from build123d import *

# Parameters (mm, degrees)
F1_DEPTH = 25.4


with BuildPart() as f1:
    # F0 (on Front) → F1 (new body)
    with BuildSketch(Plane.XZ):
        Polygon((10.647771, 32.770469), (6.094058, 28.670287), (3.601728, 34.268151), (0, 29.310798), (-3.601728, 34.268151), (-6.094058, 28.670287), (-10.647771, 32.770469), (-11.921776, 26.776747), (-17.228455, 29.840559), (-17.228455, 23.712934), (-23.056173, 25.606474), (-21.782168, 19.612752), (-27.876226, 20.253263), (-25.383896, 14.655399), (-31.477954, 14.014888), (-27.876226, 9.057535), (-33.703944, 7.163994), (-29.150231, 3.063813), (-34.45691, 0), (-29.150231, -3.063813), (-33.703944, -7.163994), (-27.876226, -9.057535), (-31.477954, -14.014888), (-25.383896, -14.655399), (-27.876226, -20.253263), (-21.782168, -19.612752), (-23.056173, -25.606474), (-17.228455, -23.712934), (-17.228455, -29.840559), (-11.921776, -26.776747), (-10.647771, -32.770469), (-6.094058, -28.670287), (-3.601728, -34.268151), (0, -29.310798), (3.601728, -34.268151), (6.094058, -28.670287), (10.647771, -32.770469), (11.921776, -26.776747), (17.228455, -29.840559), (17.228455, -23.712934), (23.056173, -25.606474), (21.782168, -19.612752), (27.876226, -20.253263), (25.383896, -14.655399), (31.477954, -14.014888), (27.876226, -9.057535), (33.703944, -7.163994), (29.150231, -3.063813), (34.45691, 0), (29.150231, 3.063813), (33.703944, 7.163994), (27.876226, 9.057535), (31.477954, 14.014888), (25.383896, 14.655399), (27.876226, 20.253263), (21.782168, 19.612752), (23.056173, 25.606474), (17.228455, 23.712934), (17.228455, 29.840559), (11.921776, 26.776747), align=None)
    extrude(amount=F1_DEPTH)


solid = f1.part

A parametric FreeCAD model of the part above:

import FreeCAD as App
import Part
import Sketcher
from FreeCAD import Vector
Q = App.Units.Quantity

doc = App.newDocument("Part")
params = doc.addObject("Spreadsheet::Sheet", "Params")
for row, (alias, value) in enumerate([
    ("pad1_length", "1 in"),
], start=1):
    params.set(f"A{row}", alias)
    params.set(f"B{row}", "=" + value)
    params.setAlias(f"B{row}", alias)

body = doc.addObject("PartDesign::Body", "Body")

# Sketch on XZ plane
sketch1 = doc.addObject("Sketcher::SketchObject", "Sketch")
body.addObject(sketch1)
sketch1.AttachmentSupport = (doc.XZ_Plane, [""])
sketch1.MapMode = "FlatFace"
sketch1.addGeometry(Part.LineSegment(Vector(10.647771, 32.770469, 0), Vector(6.094058, 28.670287, 0)), False)
sketch1.addGeometry(Part.LineSegment(Vector(6.094058, 28.670287, 0), Vector(3.601728, 34.268151, 0)), False)
sketch1.addGeometry(Part.LineSegment(Vector(3.601728, 34.268151, 0), Vector(0, 29.310798, 0)), False)
sketch1.addGeometry(Part.LineSegment(Vector(0, 29.310798, 0), Vector(-3.601728, 34.268151, 0)), False)
sketch1.addGeometry(Part.LineSegment(Vector(-3.601728, 34.268151, 0), Vector(-6.094058, 28.670287, 0)), False)
sketch1.addGeometry(Part.LineSegment(Vector(-6.094058, 28.670287, 0), Vector(-10.647771, 32.770469, 0)), False)
sketch1.addGeometry(Part.LineSegment(Vector(-10.647771, 32.770469, 0), Vector(-11.921776, 26.776747, 0)), False)
sketch1.addGeometry(Part.LineSegment(Vector(-11.921776, 26.776747, 0), Vector(-17.228455, 29.840559, 0)), False)
sketch1.addGeometry(Part.LineSegment(Vector(-17.228455, 29.840559, 0), Vector(-17.228455, 23.712934, 0)), False)
sketch1.addGeometry(Part.LineSegment(Vector(-17.228455, 23.712934, 0), Vector(-23.056173, 25.606474, 0)), False)
sketch1.addGeometry(Part.LineSegment(Vector(-23.056173, 25.606474, 0), Vector(-21.782168, 19.612752, 0)), False)
sketch1.addGeometry(Part.LineSegment(Vector(-21.782168, 19.612752, 0), Vector(-27.876226, 20.253263, 0)), False)
sketch1.addGeometry(Part.LineSegment(Vector(-27.876226, 20.253263, 0), Vector(-25.383896, 14.655399, 0)), False)
sketch1.addGeometry(Part.LineSegment(Vector(-25.383896, 14.655399, 0), Vector(-31.477954, 14.014888, 0)), False)
sketch1.addGeometry(Part.LineSegment(Vector(-31.477954, 14.014888, 0), Vector(-27.876226, 9.057535, 0)), False)
sketch1.addGeometry(Part.LineSegment(Vector(-27.876226, 9.057535, 0), Vector(-33.703944, 7.163994, 0)), False)
sketch1.addGeometry(Part.LineSegment(Vector(-33.703944, 7.163994, 0), Vector(-29.150231, 3.063813, 0)), False)
sketch1.addGeometry(Part.LineSegment(Vector(-29.150231, 3.063813, 0), Vector(-34.45691, 0, 0)), False)
sketch1.addGeometry(Part.LineSegment(Vector(-34.45691, 0, 0), Vector(-29.150231, -3.063813, 0)), False)
sketch1.addGeometry(Part.LineSegment(Vector(-29.150231, -3.063813, 0), Vector(-33.703944, -7.163994, 0)), False)
sketch1.addGeometry(Part.LineSegment(Vector(-33.703944, -7.163994, 0), Vector(-27.876226, -9.057535, 0)), False)
sketch1.addGeometry(Part.LineSegment(Vector(-27.876226, -9.057535, 0), Vector(-31.477954, -14.014888, 0)), False)
sketch1.addGeometry(Part.LineSegment(Vector(-31.477954, -14.014888, 0), Vector(-25.383896, -14.655399, 0)), False)
sketch1.addGeometry(Part.LineSegment(Vector(-25.383896, -14.655399, 0), Vector(-27.876226, -20.253263, 0)), False)
sketch1.addGeometry(Part.LineSegment(Vector(-27.876226, -20.253263, 0), Vector(-21.782168, -19.612752, 0)), False)
sketch1.addGeometry(Part.LineSegment(Vector(-21.782168, -19.612752, 0), Vector(-23.056173, -25.606474, 0)), False)
sketch1.addGeometry(Part.LineSegment(Vector(-23.056173, -25.606474, 0), Vector(-17.228455, -23.712934, 0)), False)
sketch1.addGeometry(Part.LineSegment(Vector(-17.228455, -23.712934, 0), Vector(-17.228455, -29.840559, 0)), False)
sketch1.addGeometry(Part.LineSegment(Vector(-17.228455, -29.840559, 0), Vector(-11.921776, -26.776747, 0)), False)
sketch1.addGeometry(Part.LineSegment(Vector(-11.921776, -26.776747, 0), Vector(-10.647771, -32.770469, 0)), False)
sketch1.addGeometry(Part.LineSegment(Vector(-10.647771, -32.770469, 0), Vector(-6.094058, -28.670287, 0)), False)
sketch1.addGeometry(Part.LineSegment(Vector(-6.094058, -28.670287, 0), Vector(-3.601728, -34.268151, 0)), False)
sketch1.addGeometry(Part.LineSegment(Vector(-3.601728, -34.268151, 0), Vector(0, -29.310798, 0)), False)
sketch1.addGeometry(Part.LineSegment(Vector(0, -29.310798, 0), Vector(3.601728, -34.268151, 0)), False)
sketch1.addGeometry(Part.LineSegment(Vector(3.601728, -34.268151, 0), Vector(6.094058, -28.670287, 0)), False)
sketch1.addGeometry(Part.LineSegment(Vector(6.094058, -28.670287, 0), Vector(10.647771, -32.770469, 0)), False)
sketch1.addGeometry(Part.LineSegment(Vector(10.647771, -32.770469, 0), Vector(11.921776, -26.776747, 0)), False)
sketch1.addGeometry(Part.LineSegment(Vector(11.921776, -26.776747, 0), Vector(17.228455, -29.840559, 0)), False)
sketch1.addGeometry(Part.LineSegment(Vector(17.228455, -29.840559, 0), Vector(17.228455, -23.712934, 0)), False)
sketch1.addGeometry(Part.LineSegment(Vector(17.228455, -23.712934, 0), Vector(23.056173, -25.606474, 0)), False)
sketch1.addGeometry(Part.LineSegment(Vector(23.056173, -25.606474, 0), Vector(21.782168, -19.612752, 0)), False)
sketch1.addGeometry(Part.LineSegment(Vector(21.782168, -19.612752, 0), Vector(27.876226, -20.253263, 0)), False)
sketch1.addGeometry(Part.LineSegment(Vector(27.876226, -20.253263, 0), Vector(25.383896, -14.655399, 0)), False)
sketch1.addGeometry(Part.LineSegment(Vector(25.383896, -14.655399, 0), Vector(31.477954, -14.014888, 0)), False)
sketch1.addGeometry(Part.LineSegment(Vector(31.477954, -14.014888, 0), Vector(27.876226, -9.057535, 0)), False)
sketch1.addGeometry(Part.LineSegment(Vector(27.876226, -9.057535, 0), Vector(33.703944, -7.163994, 0)), False)
sketch1.addGeometry(Part.LineSegment(Vector(33.703944, -7.163994, 0), Vector(29.150231, -3.063813, 0)), False)
sketch1.addGeometry(Part.LineSegment(Vector(29.150231, -3.063813, 0), Vector(34.45691, 0, 0)), False)
sketch1.addGeometry(Part.LineSegment(Vector(34.45691, 0, 0), Vector(29.150231, 3.063813, 0)), False)
sketch1.addGeometry(Part.LineSegment(Vector(29.150231, 3.063813, 0), Vector(33.703944, 7.163994, 0)), False)
sketch1.addGeometry(Part.LineSegment(Vector(33.703944, 7.163994, 0), Vector(27.876226, 9.057535, 0)), False)
sketch1.addGeometry(Part.LineSegment(Vector(27.876226, 9.057535, 0), Vector(31.477954, 14.014888, 0)), False)
sketch1.addGeometry(Part.LineSegment(Vector(31.477954, 14.014888, 0), Vector(25.383896, 14.655399, 0)), False)
sketch1.addGeometry(Part.LineSegment(Vector(25.383896, 14.655399, 0), Vector(27.876226, 20.253263, 0)), False)
sketch1.addGeometry(Part.LineSegment(Vector(27.876226, 20.253263, 0), Vector(21.782168, 19.612752, 0)), False)
sketch1.addGeometry(Part.LineSegment(Vector(21.782168, 19.612752, 0), Vector(23.056173, 25.606474, 0)), False)
sketch1.addGeometry(Part.LineSegment(Vector(23.056173, 25.606474, 0), Vector(17.228455, 23.712934, 0)), False)
sketch1.addGeometry(Part.LineSegment(Vector(17.228455, 23.712934, 0), Vector(17.228455, 29.840559, 0)), False)
sketch1.addGeometry(Part.LineSegment(Vector(17.228455, 29.840559, 0), Vector(11.921776, 26.776747, 0)), False)
sketch1.addGeometry(Part.LineSegment(Vector(11.921776, 26.776747, 0), Vector(10.647771, 32.770469, 0)), False)
sketch1.addConstraint(Sketcher.Constraint("Coincident", 0, 2, 1, 1))
sketch1.addConstraint(Sketcher.Constraint("Coincident", 1, 2, 2, 1))
sketch1.addConstraint(Sketcher.Constraint("Coincident", 2, 2, 3, 1))
sketch1.addConstraint(Sketcher.Constraint("Coincident", 3, 2, 4, 1))
sketch1.addConstraint(Sketcher.Constraint("Coincident", 4, 2, 5, 1))
sketch1.addConstraint(Sketcher.Constraint("Coincident", 5, 2, 6, 1))
sketch1.addConstraint(Sketcher.Constraint("Coincident", 6, 2, 7, 1))
sketch1.addConstraint(Sketcher.Constraint("Coincident", 7, 2, 8, 1))
sketch1.addConstraint(Sketcher.Constraint("Coincident", 8, 2, 9, 1))
sketch1.addConstraint(Sketcher.Constraint("Coincident", 9, 2, 10, 1))
sketch1.addConstraint(Sketcher.Constraint("Coincident", 10, 2, 11, 1))
sketch1.addConstraint(Sketcher.Constraint("Coincident", 11, 2, 12, 1))
sketch1.addConstraint(Sketcher.Constraint("Coincident", 12, 2, 13, 1))
sketch1.addConstraint(Sketcher.Constraint("Coincident", 13, 2, 14, 1))
sketch1.addConstraint(Sketcher.Constraint("Coincident", 14, 2, 15, 1))
sketch1.addConstraint(Sketcher.Constraint("Coincident", 15, 2, 16, 1))
sketch1.addConstraint(Sketcher.Constraint("Coincident", 16, 2, 17, 1))
sketch1.addConstraint(Sketcher.Constraint("Coincident", 17, 2, 18, 1))
sketch1.addConstraint(Sketcher.Constraint("Coincident", 18, 2, 19, 1))
sketch1.addConstraint(Sketcher.Constraint("Coincident", 19, 2, 20, 1))
sketch1.addConstraint(Sketcher.Constraint("Coincident", 20, 2, 21, 1))
sketch1.addConstraint(Sketcher.Constraint("Coincident", 21, 2, 22, 1))
sketch1.addConstraint(Sketcher.Constraint("Coincident", 22, 2, 23, 1))
sketch1.addConstraint(Sketcher.Constraint("Coincident", 23, 2, 24, 1))
sketch1.addConstraint(Sketcher.Constraint("Coincident", 24, 2, 25, 1))
sketch1.addConstraint(Sketcher.Constraint("Coincident", 25, 2, 26, 1))
sketch1.addConstraint(Sketcher.Constraint("Coincident", 26, 2, 27, 1))
sketch1.addConstraint(Sketcher.Constraint("Coincident", 27, 2, 28, 1))
sketch1.addConstraint(Sketcher.Constraint("Coincident", 28, 2, 29, 1))
sketch1.addConstraint(Sketcher.Constraint("Coincident", 29, 2, 30, 1))
sketch1.addConstraint(Sketcher.Constraint("Coincident", 30, 2, 31, 1))
sketch1.addConstraint(Sketcher.Constraint("Coincident", 31, 2, 32, 1))
sketch1.addConstraint(Sketcher.Constraint("Coincident", 32, 2, 33, 1))
sketch1.addConstraint(Sketcher.Constraint("Coincident", 33, 2, 34, 1))
sketch1.addConstraint(Sketcher.Constraint("Coincident", 34, 2, 35, 1))
sketch1.addConstraint(Sketcher.Constraint("Coincident", 35, 2, 36, 1))
sketch1.addConstraint(Sketcher.Constraint("Coincident", 36, 2, 37, 1))
sketch1.addConstraint(Sketcher.Constraint("Coincident", 37, 2, 38, 1))
sketch1.addConstraint(Sketcher.Constraint("Coincident", 38, 2, 39, 1))
sketch1.addConstraint(Sketcher.Constraint("Coincident", 39, 2, 40, 1))
sketch1.addConstraint(Sketcher.Constraint("Coincident", 40, 2, 41, 1))
sketch1.addConstraint(Sketcher.Constraint("Coincident", 41, 2, 42, 1))
sketch1.addConstraint(Sketcher.Constraint("Coincident", 42, 2, 43, 1))
sketch1.addConstraint(Sketcher.Constraint("Coincident", 43, 2, 44, 1))
sketch1.addConstraint(Sketcher.Constraint("Coincident", 44, 2, 45, 1))
sketch1.addConstraint(Sketcher.Constraint("Coincident", 45, 2, 46, 1))
sketch1.addConstraint(Sketcher.Constraint("Coincident", 46, 2, 47, 1))
sketch1.addConstraint(Sketcher.Constraint("Coincident", 47, 2, 48, 1))
sketch1.addConstraint(Sketcher.Constraint("Coincident", 48, 2, 49, 1))
sketch1.addConstraint(Sketcher.Constraint("Coincident", 49, 2, 50, 1))
sketch1.addConstraint(Sketcher.Constraint("Coincident", 50, 2, 51, 1))
sketch1.addConstraint(Sketcher.Constraint("Coincident", 51, 2, 52, 1))
sketch1.addConstraint(Sketcher.Constraint("Coincident", 52, 2, 53, 1))
sketch1.addConstraint(Sketcher.Constraint("Coincident", 53, 2, 54, 1))
sketch1.addConstraint(Sketcher.Constraint("Coincident", 54, 2, 55, 1))
sketch1.addConstraint(Sketcher.Constraint("Coincident", 55, 2, 56, 1))
sketch1.addConstraint(Sketcher.Constraint("Coincident", 56, 2, 57, 1))
sketch1.addConstraint(Sketcher.Constraint("Coincident", 57, 2, 58, 1))
sketch1.addConstraint(Sketcher.Constraint("Coincident", 58, 2, 59, 1))
sketch1.addConstraint(Sketcher.Constraint("Coincident", 59, 2, 0, 1))
sketch1.addConstraint(Sketcher.Constraint("Vertical", 8))
sketch1.addConstraint(Sketcher.Constraint("Vertical", 27))
sketch1.addConstraint(Sketcher.Constraint("Vertical", 38))
sketch1.addConstraint(Sketcher.Constraint("Vertical", 57))
sketch1.addConstraint(Sketcher.Constraint("Symmetric", 0, 2, 30, 2, -1, 1))
sketch1.addConstraint(Sketcher.Constraint("Symmetric", 1, 2, 31, 2, -1, 1))
sketch1.addConstraint(Sketcher.Constraint("Symmetric", 2, 2, 32, 2, -1, 1))
sketch1.addConstraint(Sketcher.Constraint("Symmetric", 3, 2, 33, 2, -1, 1))
sketch1.addConstraint(Sketcher.Constraint("Symmetric", 4, 2, 34, 2, -1, 1))
sketch1.addConstraint(Sketcher.Constraint("Symmetric", 5, 2, 35, 2, -1, 1))
sketch1.addConstraint(Sketcher.Constraint("Symmetric", 6, 2, 36, 2, -1, 1))
sketch1.addConstraint(Sketcher.Constraint("Symmetric", 7, 2, 37, 2, -1, 1))
sketch1.addConstraint(Sketcher.Constraint("Symmetric", 9, 2, 39, 2, -1, 1))
sketch1.addConstraint(Sketcher.Constraint("Symmetric", 10, 2, 40, 2, -1, 1))
sketch1.addConstraint(Sketcher.Constraint("Symmetric", 11, 2, 41, 2, -1, 1))
sketch1.addConstraint(Sketcher.Constraint("Symmetric", 12, 2, 42, 2, -1, 1))
sketch1.addConstraint(Sketcher.Constraint("Symmetric", 13, 2, 43, 2, -1, 1))
sketch1.addConstraint(Sketcher.Constraint("Symmetric", 14, 2, 44, 2, -1, 1))
sketch1.addConstraint(Sketcher.Constraint("Symmetric", 15, 2, 45, 2, -1, 1))
sketch1.addConstraint(Sketcher.Constraint("Symmetric", 16, 2, 46, 2, -1, 1))
sketch1.addConstraint(Sketcher.Constraint("Symmetric", 17, 2, 47, 2, -1, 1))
sketch1.addConstraint(Sketcher.Constraint("Symmetric", 18, 2, 48, 2, -1, 1))
sketch1.addConstraint(Sketcher.Constraint("Symmetric", 19, 2, 49, 2, -1, 1))
sketch1.addConstraint(Sketcher.Constraint("Symmetric", 20, 2, 50, 2, -1, 1))
sketch1.addConstraint(Sketcher.Constraint("Symmetric", 21, 2, 51, 2, -1, 1))
sketch1.addConstraint(Sketcher.Constraint("Symmetric", 22, 2, 52, 2, -1, 1))
sketch1.addConstraint(Sketcher.Constraint("Symmetric", 23, 2, 53, 2, -1, 1))
sketch1.addConstraint(Sketcher.Constraint("Symmetric", 24, 2, 54, 2, -1, 1))
sketch1.addConstraint(Sketcher.Constraint("Symmetric", 25, 2, 55, 2, -1, 1))
sketch1.addConstraint(Sketcher.Constraint("Symmetric", 26, 2, 56, 2, -1, 1))
sketch1.addConstraint(Sketcher.Constraint("Symmetric", 28, 2, 58, 2, -1, 1))
sketch1.addConstraint(Sketcher.Constraint("Symmetric", 29, 2, 59, 2, -1, 1))
sketch1.addConstraint(Sketcher.Constraint("Symmetric", 1, 2, 3, 2, -2))
sketch1.addConstraint(Sketcher.Constraint("Symmetric", 0, 2, 4, 2, -2))
sketch1.addConstraint(Sketcher.Constraint("Symmetric", 29, 2, 35, 2, -2))
sketch1.addConstraint(Sketcher.Constraint("Symmetric", 28, 2, 36, 2, -2))
sketch1.addConstraint(Sketcher.Constraint("Symmetric", 27, 2, 37, 2, -2))
sketch1.addConstraint(Sketcher.Constraint("Symmetric", 25, 2, 39, 2, -2))
sketch1.addConstraint(Sketcher.Constraint("Symmetric", 24, 2, 40, 2, -2))
sketch1.addConstraint(Sketcher.Constraint("Symmetric", 23, 2, 41, 2, -2))
sketch1.addConstraint(Sketcher.Constraint("Symmetric", 22, 2, 42, 2, -2))
sketch1.addConstraint(Sketcher.Constraint("Symmetric", 21, 2, 43, 2, -2))
sketch1.addConstraint(Sketcher.Constraint("Symmetric", 20, 2, 44, 2, -2))
sketch1.addConstraint(Sketcher.Constraint("Symmetric", 19, 2, 45, 2, -2))
sketch1.addConstraint(Sketcher.Constraint("Symmetric", 18, 2, 46, 2, -2))
sketch1.addConstraint(Sketcher.Constraint("PointOnObject", 2, 2, -2))
sketch1.addConstraint(Sketcher.Constraint("PointOnObject", 17, 2, -1))
sketch1.addConstraint(Sketcher.Constraint("Parallel", 1, 12))
sketch1.addConstraint(Sketcher.Constraint("Parallel", 3, 14))
sketch1.addConstraint(Sketcher.Constraint("Parallel", 5, 16))
sketch1.addConstraint(Sketcher.Constraint("Parallel", 7, 18))
sketch1.addConstraint(Sketcher.Constraint("Parallel", 9, 20))
sketch1.addConstraint(Sketcher.Constraint("Parallel", 11, 22))
sketch1.addConstraint(Sketcher.Constraint("Parallel", 6, 25))
sketch1.addConstraint(Sketcher.Constraint("Parallel", 15, 26))
sketch1.addConstraint(Sketcher.Constraint("Parallel", 20, 39))
sketch1.addConstraint(Sketcher.Constraint("Parallel", 47, 58))
sketch1.addConstraint(Sketcher.Constraint("Vertical", 11, 2, 14, 2))
sketch1.addConstraint(Sketcher.Constraint("Equal", 0, 1))
sketch1.addConstraint(Sketcher.Constraint("Equal", 1, 2))
sketch1.addConstraint(Sketcher.Constraint("Equal", 5, 6))
sketch1.addConstraint(Sketcher.Constraint("Equal", 6, 7))
sketch1.addConstraint(Sketcher.Constraint("Equal", 7, 9))
sketch1.addConstraint(Sketcher.Constraint("Equal", 9, 10))
sketch1.addConstraint(Sketcher.Constraint("Equal", 10, 11))
sketch1.addConstraint(Sketcher.Constraint("Equal", 11, 12))
sketch1.addConstraint(Sketcher.Constraint("Equal", 12, 13))
sketch1.addConstraint(Sketcher.Constraint("Equal", 13, 14))
sketch1.addConstraint(Sketcher.Constraint("Equal", 14, 15))
sketch1.addConstraint(Sketcher.Constraint("Equal", 15, 16))
sketch1.addConstraint(Sketcher.Constraint("Equal", 16, 17))
sketch1.addConstraint(Sketcher.Constraint("Angle", 0, Q("-137.999997 deg")))
sketch1.addConstraint(Sketcher.Constraint("Angle", 1, Q("114.000003 deg")))
sketch1.addConstraint(Sketcher.Constraint("Angle", 2, Q("-126.000002 deg")))
sketch1.addConstraint(Sketcher.Constraint("Angle", 6, Q("-102.000001 deg")))
sketch1.addConstraint(Sketcher.Constraint("Angle", 7, Q("150.000004 deg")))
sketch1.addConstraint(Sketcher.Constraint("Angle", 9, Q("162.000003 deg")))
sketch1.addConstraint(Sketcher.Constraint("DistanceX", 9, 2, 4, 2, Q("0.6677998 in")))
sketch1.addConstraint(Sketcher.Constraint("DistanceY", 8, 2, 8, 1, 6.127625))
pad1 = doc.addObject("PartDesign::Pad", "Pad")
body.addObject(pad1)
pad1.Profile = sketch1
pad1.setExpression("Length", "Params.pad1_length")

doc.recompute()
